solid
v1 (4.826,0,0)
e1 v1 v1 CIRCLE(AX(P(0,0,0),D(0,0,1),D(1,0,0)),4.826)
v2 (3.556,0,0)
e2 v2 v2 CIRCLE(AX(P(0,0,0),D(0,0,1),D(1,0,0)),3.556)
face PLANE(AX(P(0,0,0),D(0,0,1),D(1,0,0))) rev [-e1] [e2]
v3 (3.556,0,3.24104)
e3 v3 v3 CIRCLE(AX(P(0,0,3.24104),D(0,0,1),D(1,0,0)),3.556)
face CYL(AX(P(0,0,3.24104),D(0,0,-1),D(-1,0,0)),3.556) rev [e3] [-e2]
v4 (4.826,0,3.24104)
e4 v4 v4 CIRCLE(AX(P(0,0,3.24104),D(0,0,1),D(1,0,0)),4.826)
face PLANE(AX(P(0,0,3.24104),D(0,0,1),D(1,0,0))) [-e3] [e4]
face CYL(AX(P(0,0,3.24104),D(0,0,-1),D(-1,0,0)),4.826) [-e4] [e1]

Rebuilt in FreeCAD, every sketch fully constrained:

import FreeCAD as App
import Part
import Sketcher
from FreeCAD import Vector
Q = App.Units.Quantity

doc = App.newDocument("Part")
params = doc.addObject("Spreadsheet::Sheet", "Params")
for row, (alias, value) in enumerate([
    ("sketch1_diameter", "0.38 in"),
    ("sketch1_diameter2", "0.28 in"),
    ("pad1_length", "0.1276 in"),
], start=1):
    params.set(f"A{row}", alias)
    params.set(f"B{row}", "=" + value)
    params.setAlias(f"B{row}", alias)

body = doc.addObject("PartDesign::Body", "Body")

sketch1 = doc.addObject("Sketcher::SketchObject", "Sketch")
body.addObject(sketch1)
sketch1.AttachmentSupport = (doc.XY_Plane, [""])
sketch1.MapMode = "FlatFace"
sketch1.addGeometry([
    Part.Circle(Vector(0, 0, 0), Vector(0, 0, 1), 4.8),
    Part.Circle(Vector(0, 0, 0), Vector(0, 0, 1), 3.6),
], False)
sketch1.addConstraint([
    Sketcher.Constraint("Coincident", 0, 3, -1, 1),
    Sketcher.Constraint("Coincident", 1, 3, -1, 1),
    Sketcher.Constraint("Diameter", 0, Q("0.38 in")),
    Sketcher.Constraint("Diameter", 1, Q("0.28 in")),
])
sketch1.setExpression("Constraints[2]", "Params.sketch1_diameter")
sketch1.setExpression("Constraints[3]", "Params.sketch1_diameter2")
pad1 = doc.addObject("PartDesign::Pad", "Pad")
body.addObject(pad1)
pad1.Profile = sketch1
pad1.setExpression("Length", "Params.pad1_length")

doc.recompute()
